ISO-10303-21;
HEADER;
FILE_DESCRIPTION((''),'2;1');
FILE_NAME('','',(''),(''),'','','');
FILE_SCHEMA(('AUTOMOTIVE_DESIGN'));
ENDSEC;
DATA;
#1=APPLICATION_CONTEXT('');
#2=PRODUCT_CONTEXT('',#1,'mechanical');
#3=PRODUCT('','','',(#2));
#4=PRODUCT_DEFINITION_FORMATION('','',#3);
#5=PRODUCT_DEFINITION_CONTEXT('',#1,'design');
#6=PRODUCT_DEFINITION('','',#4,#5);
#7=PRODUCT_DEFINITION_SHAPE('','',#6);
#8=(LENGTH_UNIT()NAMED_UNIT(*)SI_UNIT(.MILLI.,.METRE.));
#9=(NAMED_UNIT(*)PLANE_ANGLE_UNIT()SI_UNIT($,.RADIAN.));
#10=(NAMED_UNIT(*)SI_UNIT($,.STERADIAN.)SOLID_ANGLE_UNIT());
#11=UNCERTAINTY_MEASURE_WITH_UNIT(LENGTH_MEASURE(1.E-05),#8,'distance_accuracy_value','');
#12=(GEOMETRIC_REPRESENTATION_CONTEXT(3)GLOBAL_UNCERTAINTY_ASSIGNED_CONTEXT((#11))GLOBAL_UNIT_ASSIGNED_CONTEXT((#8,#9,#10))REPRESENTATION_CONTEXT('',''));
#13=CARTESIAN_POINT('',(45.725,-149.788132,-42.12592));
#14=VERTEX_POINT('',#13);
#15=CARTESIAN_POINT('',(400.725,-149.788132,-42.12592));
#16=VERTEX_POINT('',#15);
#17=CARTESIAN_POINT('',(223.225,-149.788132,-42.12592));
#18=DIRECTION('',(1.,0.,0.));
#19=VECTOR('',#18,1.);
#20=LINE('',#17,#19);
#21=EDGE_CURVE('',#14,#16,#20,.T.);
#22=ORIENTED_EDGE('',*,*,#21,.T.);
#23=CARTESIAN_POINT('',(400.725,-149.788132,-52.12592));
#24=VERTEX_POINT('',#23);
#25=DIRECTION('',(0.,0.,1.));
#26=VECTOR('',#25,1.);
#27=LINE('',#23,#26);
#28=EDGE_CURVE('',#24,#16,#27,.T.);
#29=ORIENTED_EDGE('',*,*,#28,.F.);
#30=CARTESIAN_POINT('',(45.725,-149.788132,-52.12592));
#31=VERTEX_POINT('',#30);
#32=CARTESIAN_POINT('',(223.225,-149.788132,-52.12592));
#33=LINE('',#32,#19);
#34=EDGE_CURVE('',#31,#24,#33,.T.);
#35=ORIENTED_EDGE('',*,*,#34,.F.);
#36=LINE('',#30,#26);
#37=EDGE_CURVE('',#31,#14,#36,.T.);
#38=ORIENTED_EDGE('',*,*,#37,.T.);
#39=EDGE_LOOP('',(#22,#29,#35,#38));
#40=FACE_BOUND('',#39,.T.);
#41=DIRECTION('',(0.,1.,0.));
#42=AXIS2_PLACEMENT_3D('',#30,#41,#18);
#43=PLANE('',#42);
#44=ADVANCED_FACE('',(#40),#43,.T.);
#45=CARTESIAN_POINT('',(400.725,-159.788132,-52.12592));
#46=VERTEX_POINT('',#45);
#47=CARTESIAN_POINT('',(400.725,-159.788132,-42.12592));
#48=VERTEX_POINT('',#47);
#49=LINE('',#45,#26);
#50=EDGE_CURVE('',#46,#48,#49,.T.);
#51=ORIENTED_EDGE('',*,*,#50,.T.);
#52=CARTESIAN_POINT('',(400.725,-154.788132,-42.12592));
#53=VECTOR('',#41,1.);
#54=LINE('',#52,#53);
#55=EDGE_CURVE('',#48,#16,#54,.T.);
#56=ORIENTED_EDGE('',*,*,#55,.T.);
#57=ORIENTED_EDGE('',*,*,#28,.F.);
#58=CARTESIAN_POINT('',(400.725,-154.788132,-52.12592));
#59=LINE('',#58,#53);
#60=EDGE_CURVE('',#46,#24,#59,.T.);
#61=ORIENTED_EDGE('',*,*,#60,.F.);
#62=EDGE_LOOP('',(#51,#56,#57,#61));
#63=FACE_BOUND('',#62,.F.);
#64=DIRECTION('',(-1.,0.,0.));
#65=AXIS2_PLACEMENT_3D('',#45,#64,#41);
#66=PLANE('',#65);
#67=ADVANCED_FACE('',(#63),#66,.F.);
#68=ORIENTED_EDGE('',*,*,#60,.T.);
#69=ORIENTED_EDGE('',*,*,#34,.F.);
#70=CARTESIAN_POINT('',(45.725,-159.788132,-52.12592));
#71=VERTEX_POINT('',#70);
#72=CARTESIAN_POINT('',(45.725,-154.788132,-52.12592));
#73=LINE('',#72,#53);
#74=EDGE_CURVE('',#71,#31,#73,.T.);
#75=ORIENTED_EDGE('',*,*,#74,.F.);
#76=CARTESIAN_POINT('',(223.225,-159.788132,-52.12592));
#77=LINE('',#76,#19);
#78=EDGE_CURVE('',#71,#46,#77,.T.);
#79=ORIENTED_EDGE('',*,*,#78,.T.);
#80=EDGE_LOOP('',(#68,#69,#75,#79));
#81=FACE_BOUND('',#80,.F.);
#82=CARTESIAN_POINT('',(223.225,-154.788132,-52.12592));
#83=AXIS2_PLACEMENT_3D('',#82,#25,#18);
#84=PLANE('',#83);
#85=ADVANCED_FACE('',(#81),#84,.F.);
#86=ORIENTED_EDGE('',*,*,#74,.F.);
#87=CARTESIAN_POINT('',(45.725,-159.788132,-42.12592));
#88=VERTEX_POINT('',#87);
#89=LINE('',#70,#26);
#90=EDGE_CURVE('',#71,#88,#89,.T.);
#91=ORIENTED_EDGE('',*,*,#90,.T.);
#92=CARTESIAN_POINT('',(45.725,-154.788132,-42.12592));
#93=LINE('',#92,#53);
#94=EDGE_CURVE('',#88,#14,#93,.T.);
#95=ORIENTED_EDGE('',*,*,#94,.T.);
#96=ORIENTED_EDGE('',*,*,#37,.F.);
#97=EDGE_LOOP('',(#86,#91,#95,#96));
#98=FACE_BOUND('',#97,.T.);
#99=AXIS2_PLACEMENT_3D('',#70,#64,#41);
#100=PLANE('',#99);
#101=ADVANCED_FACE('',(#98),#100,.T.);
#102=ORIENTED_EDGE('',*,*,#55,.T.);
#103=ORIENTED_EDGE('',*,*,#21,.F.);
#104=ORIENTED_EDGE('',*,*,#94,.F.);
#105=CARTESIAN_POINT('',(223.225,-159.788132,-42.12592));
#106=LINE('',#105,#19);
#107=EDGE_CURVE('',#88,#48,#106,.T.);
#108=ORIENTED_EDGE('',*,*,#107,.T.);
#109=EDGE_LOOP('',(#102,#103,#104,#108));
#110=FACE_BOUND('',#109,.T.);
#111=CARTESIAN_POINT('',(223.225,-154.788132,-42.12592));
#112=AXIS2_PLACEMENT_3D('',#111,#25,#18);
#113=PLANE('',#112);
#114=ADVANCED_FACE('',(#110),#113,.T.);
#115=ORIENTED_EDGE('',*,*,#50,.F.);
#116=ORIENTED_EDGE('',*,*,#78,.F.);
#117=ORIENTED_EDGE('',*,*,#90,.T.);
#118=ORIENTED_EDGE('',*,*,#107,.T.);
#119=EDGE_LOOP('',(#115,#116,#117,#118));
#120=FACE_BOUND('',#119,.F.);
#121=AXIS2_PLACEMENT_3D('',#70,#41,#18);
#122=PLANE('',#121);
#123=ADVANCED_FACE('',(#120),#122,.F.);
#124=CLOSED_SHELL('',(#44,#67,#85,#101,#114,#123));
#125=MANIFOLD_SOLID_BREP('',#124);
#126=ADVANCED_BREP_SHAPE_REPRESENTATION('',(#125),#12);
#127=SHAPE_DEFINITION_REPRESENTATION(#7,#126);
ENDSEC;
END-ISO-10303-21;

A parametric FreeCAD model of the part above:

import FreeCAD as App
import Part
import Sketcher


def add_polygon(sketch, points):
    """Adds a closed chain of lines whose ends are joined by coincident constraints."""
    first, n = sketch.GeometryCount, len(points)
    for a, b in zip(points, points[1:] + points[:1]):
        sketch.addGeometry(Part.LineSegment(App.Vector(*a, 0), App.Vector(*b, 0)), False)
    for i in range(n):
        sketch.addConstraint(Sketcher.Constraint("Coincident", first + i, 2, first + (i + 1) % n, 1))

doc = App.newDocument("Part")
body = doc.addObject("PartDesign::Body", "Body")

# Sketch on XY plane
sketch1 = body.newObject("Sketcher::SketchObject", "Sketch")
sketch1.AttachmentSupport = (doc.getObject("XY_Plane"), [""])
sketch1.MapMode = "FlatFace"
sketch1.AttachmentOffset = App.Placement(App.Vector(0, 0, -52.12592), App.Rotation())
add_polygon(sketch1, [(46, -150), (46, -160), (401, -160), (401, -150)])  # lines 0-3
sketch1.addConstraint(Sketcher.Constraint("Vertical", 0))
sketch1.addConstraint(Sketcher.Constraint("Horizontal", 1))
sketch1.addConstraint(Sketcher.Constraint("Vertical", 2))
sketch1.addConstraint(Sketcher.Constraint("Horizontal", 3))
sketch1.addConstraint(Sketcher.Constraint("DistanceX", 1, 1, 1, 2, 355.0))
sketch1.addConstraint(Sketcher.Constraint("DistanceY", 0, 2, 0, 1, 10.0))
sketch1.addConstraint(Sketcher.Constraint("DistanceX", -1, 1, 0, 2, 45.725))
sketch1.addConstraint(Sketcher.Constraint("DistanceY", 0, 2, -1, 1, 159.788132))
pad1 = body.newObject("PartDesign::Pad", "Pad")
pad1.Profile = sketch1
pad1.Length = 10

doc.recompute()
